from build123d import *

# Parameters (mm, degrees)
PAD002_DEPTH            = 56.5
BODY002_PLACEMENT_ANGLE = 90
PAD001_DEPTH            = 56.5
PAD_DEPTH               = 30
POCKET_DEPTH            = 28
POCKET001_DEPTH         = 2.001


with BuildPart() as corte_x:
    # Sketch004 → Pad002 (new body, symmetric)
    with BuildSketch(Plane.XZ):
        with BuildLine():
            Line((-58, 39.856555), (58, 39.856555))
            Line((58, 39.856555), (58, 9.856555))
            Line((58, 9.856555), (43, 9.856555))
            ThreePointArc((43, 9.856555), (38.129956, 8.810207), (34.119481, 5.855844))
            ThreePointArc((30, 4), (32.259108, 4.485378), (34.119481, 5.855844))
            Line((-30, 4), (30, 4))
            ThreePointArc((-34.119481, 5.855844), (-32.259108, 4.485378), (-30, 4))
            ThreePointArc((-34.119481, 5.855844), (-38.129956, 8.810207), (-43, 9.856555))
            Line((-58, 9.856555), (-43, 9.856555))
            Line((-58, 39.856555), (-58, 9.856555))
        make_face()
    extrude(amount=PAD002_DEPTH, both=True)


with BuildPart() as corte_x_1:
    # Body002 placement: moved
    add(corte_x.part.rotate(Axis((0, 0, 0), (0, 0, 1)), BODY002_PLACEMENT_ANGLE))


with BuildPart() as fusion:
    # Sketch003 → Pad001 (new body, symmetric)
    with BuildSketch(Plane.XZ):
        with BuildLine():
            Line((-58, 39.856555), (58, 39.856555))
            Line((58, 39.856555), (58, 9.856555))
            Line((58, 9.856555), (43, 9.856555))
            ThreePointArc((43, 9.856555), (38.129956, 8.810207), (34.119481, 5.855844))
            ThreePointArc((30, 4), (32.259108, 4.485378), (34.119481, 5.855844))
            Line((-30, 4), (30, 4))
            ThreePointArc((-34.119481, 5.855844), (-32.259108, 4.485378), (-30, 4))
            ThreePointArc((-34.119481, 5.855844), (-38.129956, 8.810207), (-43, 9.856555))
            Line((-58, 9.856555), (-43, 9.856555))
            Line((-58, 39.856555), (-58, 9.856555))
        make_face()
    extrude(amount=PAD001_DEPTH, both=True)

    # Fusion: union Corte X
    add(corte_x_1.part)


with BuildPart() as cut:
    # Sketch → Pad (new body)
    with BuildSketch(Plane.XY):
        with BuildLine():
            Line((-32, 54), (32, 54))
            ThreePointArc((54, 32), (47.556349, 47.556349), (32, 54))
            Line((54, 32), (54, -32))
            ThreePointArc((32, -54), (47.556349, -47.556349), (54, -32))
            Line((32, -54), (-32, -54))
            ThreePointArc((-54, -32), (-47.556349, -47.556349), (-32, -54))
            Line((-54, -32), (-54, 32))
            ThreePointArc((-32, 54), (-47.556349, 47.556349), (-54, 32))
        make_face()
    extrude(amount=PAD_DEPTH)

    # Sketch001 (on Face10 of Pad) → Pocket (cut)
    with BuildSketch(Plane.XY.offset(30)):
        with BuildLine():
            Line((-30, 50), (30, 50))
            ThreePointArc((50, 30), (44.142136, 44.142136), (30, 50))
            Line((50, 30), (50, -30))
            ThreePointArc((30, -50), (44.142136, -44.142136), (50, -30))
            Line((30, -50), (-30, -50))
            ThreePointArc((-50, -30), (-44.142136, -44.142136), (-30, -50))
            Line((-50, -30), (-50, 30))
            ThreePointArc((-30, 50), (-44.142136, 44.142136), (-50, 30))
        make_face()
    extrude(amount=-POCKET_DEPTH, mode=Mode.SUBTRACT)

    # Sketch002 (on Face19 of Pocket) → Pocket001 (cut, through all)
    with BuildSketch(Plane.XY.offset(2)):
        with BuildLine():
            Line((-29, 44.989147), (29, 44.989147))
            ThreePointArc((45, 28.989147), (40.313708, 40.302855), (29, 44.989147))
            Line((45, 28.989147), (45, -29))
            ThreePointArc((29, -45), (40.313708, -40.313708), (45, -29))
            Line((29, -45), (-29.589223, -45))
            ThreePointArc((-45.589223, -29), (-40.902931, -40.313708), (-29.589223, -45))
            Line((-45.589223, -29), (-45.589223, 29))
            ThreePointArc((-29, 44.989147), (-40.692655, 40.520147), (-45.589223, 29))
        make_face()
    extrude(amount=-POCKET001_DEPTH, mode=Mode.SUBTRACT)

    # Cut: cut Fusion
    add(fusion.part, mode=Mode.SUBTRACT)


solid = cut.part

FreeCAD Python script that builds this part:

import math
import FreeCAD as App
import Part
import Sketcher
Q = App.Units.Quantity

doc = App.newDocument("Part")
body = doc.addObject("PartDesign::Body", "Body")

sketch1 = body.newObject("Sketcher::SketchObject", "Sketch")
sketch1.AttachmentSupport = (doc.getObject("XZ_Plane"), [""])
sketch1.MapMode = "FlatFace"
sketch1.addGeometry([
    Part.LineSegment(App.Vector(58, 39.9, 0), App.Vector(-58, 39.9, 0)),
    Part.LineSegment(App.Vector(-58, 39.9, 0), App.Vector(-58, 9.9, 0)),
    Part.LineSegment(App.Vector(-58, 9.9, 0), App.Vector(-43, 9.9, 0)),
    Part.ArcOfCircle(Part.Circle(App.Vector(-43, -2, 0), App.Vector(0, 0, 1), 11.9), math.radians(41), math.radians(90)),
    Part.ArcOfCircle(Part.Circle(App.Vector(-30, 9.5, 0), App.Vector(0, 0, 1), 5.5), math.radians(-139), math.radians(-90)),
    Part.LineSegment(App.Vector(-30, 4, 0), App.Vector(30, 4, 0)),
    Part.ArcOfCircle(Part.Circle(App.Vector(30, 9.5, 0), App.Vector(0, 0, 1), 5.5), math.radians(-90), math.radians(-41)),
    Part.ArcOfCircle(Part.Circle(App.Vector(43, -2, 0), App.Vector(0, 0, 1), 11.9), math.radians(90), math.radians(139)),
    Part.LineSegment(App.Vector(43, 9.9, 0), App.Vector(58, 9.9, 0)),
    Part.LineSegment(App.Vector(58, 9.9, 0), App.Vector(58, 39.9, 0)),
], False)
sketch1.addConstraint([
    Sketcher.Constraint("Coincident", 0, 2, 1, 1),
    Sketcher.Constraint("Coincident", 1, 2, 2, 1),
    Sketcher.Constraint("Tangent", 2, 2, 3, 2),
    Sketcher.Constraint("Tangent", 3, 1, 4, 1),
    Sketcher.Constraint("Tangent", 4, 2, 5, 1),
    Sketcher.Constraint("Tangent", 5, 2, 6, 1),
    Sketcher.Constraint("Tangent", 6, 2, 7, 2),
    Sketcher.Constraint("Tangent", 7, 1, 8, 1),
    Sketcher.Constraint("Coincident", 8, 2, 9, 1),
    Sketcher.Constraint("Coincident", 9, 2, 0, 1),
    Sketcher.Constraint("Horizontal", 0),
    Sketcher.Constraint("Vertical", 1),
    Sketcher.Constraint("Horizontal", 2),
    Sketcher.Constraint("Horizontal", 5),
    Sketcher.Constraint("Horizontal", 8),
    Sketcher.Constraint("Vertical", 9),
    Sketcher.Constraint("Equal", 4, 6),
    Sketcher.Constraint("Equal", 3, 7),
    Sketcher.Constraint("Symmetric", 3, 3, 7, 3, -2),
    Sketcher.Constraint("Equal", 2, 8),
    Sketcher.Constraint("DistanceX", 0, 2, 0, 1, Q("116 mm")),
    Sketcher.Constraint("DistanceX", 2, 1, 2, 2, Q("15 mm")),
    Sketcher.Constraint("DistanceX", 5, 1, 5, 2, Q("60 mm")),
    Sketcher.Constraint("DistanceY", 1, 2, 1, 1, Q("30 mm")),
    Sketcher.Constraint("DistanceY", 3, 3, -1, 1, Q("1.999998 mm")),
    Sketcher.Constraint("DistanceY", -1, 1, 4, 2, Q("4 mm")),
    Sketcher.Constraint("Radius", 3, Q("11.856553 mm")),
])
pad1 = body.newObject("PartDesign::Pad", "Pad")
pad1.Profile = sketch1
pad1.Length = 113
pad1.Midplane = True
body2 = doc.addObject("PartDesign::Body", "Body001")
doc.recompute()

body.Placement = App.Placement(App.Vector(0, 0, 0), App.Rotation(App.Vector(0, 0, 1), 90))
boolean = body2.newObject("PartDesign::Boolean", "Boolean")
boolean.Type = "Fuse"
boolean.addObjects([body])
body3 = doc.addObject("PartDesign::Body", "Body002")

sketch2 = body3.newObject("Sketcher::SketchObject", "Sketch001")
sketch2.AttachmentSupport = (doc.getObject("XZ_Plane002"), [""])
sketch2.MapMode = "FlatFace"
sketch2.addGeometry([
    Part.LineSegment(App.Vector(58, 39.9, 0), App.Vector(-58, 39.9, 0)),
    Part.LineSegment(App.Vector(-58, 39.9, 0), App.Vector(-58, 9.9, 0)),
    Part.LineSegment(App.Vector(-58, 9.9, 0), App.Vector(-43, 9.9, 0)),
    Part.ArcOfCircle(Part.Circle(App.Vector(-43, -2, 0), App.Vector(0, 0, 1), 11.9), math.radians(41), math.radians(90)),
    Part.ArcOfCircle(Part.Circle(App.Vector(-30, 9.5, 0), App.Vector(0, 0, 1), 5.5), math.radians(-139), math.radians(-90)),
    Part.LineSegment(App.Vector(-30, 4, 0), App.Vector(30, 4, 0)),
    Part.ArcOfCircle(Part.Circle(App.Vector(30, 9.5, 0), App.Vector(0, 0, 1), 5.5), math.radians(-90), math.radians(-41)),
    Part.ArcOfCircle(Part.Circle(App.Vector(43, -2, 0), App.Vector(0, 0, 1), 11.9), math.radians(90), math.radians(139)),
    Part.LineSegment(App.Vector(43, 9.9, 0), App.Vector(58, 9.9, 0)),
    Part.LineSegment(App.Vector(58, 9.9, 0), App.Vector(58, 39.9, 0)),
], False)
sketch2.addConstraint([
    Sketcher.Constraint("Coincident", 0, 2, 1, 1),
    Sketcher.Constraint("Coincident", 1, 2, 2, 1),
    Sketcher.Constraint("Tangent", 2, 2, 3, 2),
    Sketcher.Constraint("Tangent", 3, 1, 4, 1),
    Sketcher.Constraint("Tangent", 4, 2, 5, 1),
    Sketcher.Constraint("Tangent", 5, 2, 6, 1),
    Sketcher.Constraint("Tangent", 6, 2, 7, 2),
    Sketcher.Constraint("Tangent", 7, 1, 8, 1),
    Sketcher.Constraint("Coincident", 8, 2, 9, 1),
    Sketcher.Constraint("Coincident", 9, 2, 0, 1),
    Sketcher.Constraint("Horizontal", 0),
    Sketcher.Constraint("Vertical", 1),
    Sketcher.Constraint("Horizontal", 2),
    Sketcher.Constraint("Horizontal", 5),
    Sketcher.Constraint("Horizontal", 8),
    Sketcher.Constraint("Vertical", 9),
    Sketcher.Constraint("Equal", 4, 6),
    Sketcher.Constraint("Equal", 3, 7),
    Sketcher.Constraint("Symmetric", 3, 3, 7, 3, -2),
    Sketcher.Constraint("Equal", 2, 8),
    Sketcher.Constraint("DistanceX", 0, 2, 0, 1, Q("116 mm")),
    Sketcher.Constraint("DistanceX", 2, 1, 2, 2, Q("15 mm")),
    Sketcher.Constraint("DistanceX", 5, 1, 5, 2, Q("60 mm")),
    Sketcher.Constraint("DistanceY", 1, 2, 1, 1, Q("30 mm")),
    Sketcher.Constraint("DistanceY", 3, 3, -1, 1, Q("1.999998 mm")),
    Sketcher.Constraint("DistanceY", -1, 1, 4, 2, Q("4 mm")),
    Sketcher.Constraint("Radius", 3, Q("11.856553 mm")),
])
pad2 = body3.newObject("PartDesign::Pad", "Pad001")
pad2.Profile = sketch2
pad2.Length = 113
pad2.Midplane = True
doc.recompute()

boolean2 = body3.newObject("PartDesign::Boolean", "Boolean001")
boolean2.Type = "Fuse"
boolean2.addObjects([body2])
body4 = doc.addObject("PartDesign::Body", "Body003")

sketch3 = body4.newObject("Sketcher::SketchObject", "Sketch002")
sketch3.AttachmentSupport = (doc.getObject("XY_Plane003"), [""])
sketch3.MapMode = "FlatFace"
sketch3.addGeometry([
    Part.LineSegment(App.Vector(32, 54, 0), App.Vector(-32, 54, 0)),
    Part.ArcOfCircle(Part.Circle(App.Vector(-32, 32, 0), App.Vector(0, 0, 1), 22), math.radians(90), math.radians(180)),
    Part.LineSegment(App.Vector(-54, 32, 0), App.Vector(-54, -32, 0)),
    Part.ArcOfCircle(Part.Circle(App.Vector(-32, -32, 0), App.Vector(0, 0, 1), 22), math.radians(-180), math.radians(-90)),
    Part.LineSegment(App.Vector(-32, -54, 0), App.Vector(32, -54, 0)),
    Part.ArcOfCircle(Part.Circle(App.Vector(32, -32, 0), App.Vector(0, 0, 1), 22), math.radians(-90), math.radians(0)),
    Part.LineSegment(App.Vector(54, -32, 0), App.Vector(54, 32, 0)),
    Part.ArcOfCircle(Part.Circle(App.Vector(32, 32, 0), App.Vector(0, 0, 1), 22), math.radians(0), math.radians(90)),
], False)
sketch3.addConstraint([
    Sketcher.Constraint("Tangent", 0, 2, 1, 1),
    Sketcher.Constraint("Tangent", 1, 2, 2, 1),
    Sketcher.Constraint("Tangent", 2, 2, 3, 1),
    Sketcher.Constraint("Tangent", 3, 2, 4, 1),
    Sketcher.Constraint("Tangent", 4, 2, 5, 1),
    Sketcher.Constraint("Tangent", 5, 2, 6, 1),
    Sketcher.Constraint("Tangent", 6, 2, 7, 1),
    Sketcher.Constraint("Tangent", 7, 2, 0, 1),
    Sketcher.Constraint("Horizontal", 0),
    Sketcher.Constraint("Vertical", 2),
    Sketcher.Constraint("Horizontal", 4),
    Sketcher.Constraint("Vertical", 6),
    Sketcher.Constraint("Equal", 1, 3),
    Sketcher.Constraint("Equal", 3, 5),
    Sketcher.Constraint("Equal", 5, 7),
    Sketcher.Constraint("Symmetric", 1, 3, 5, 3, -1, 1),
    Sketcher.Constraint("Equal", 4, 2),
    Sketcher.Constraint("Radius", 1, Q("22.000001 mm")),
    Sketcher.Constraint("DistanceX", 0, 2, 0, 1, Q("64 mm")),
])
pad3 = body4.newObject("PartDesign::Pad", "Pad002")
pad3.Profile = sketch3
pad3.Length = 30

sketch4 = body4.newObject("Sketcher::SketchObject", "Sketch003")
sketch4.AttachmentSupport = (doc.getObject("XY_Plane003"), [""])
sketch4.MapMode = "FlatFace"
sketch4.AttachmentOffset = App.Placement(App.Vector(0, 0, 30), App.Rotation())
sketch4.addGeometry([
    Part.LineSegment(App.Vector(30, 50, 0), App.Vector(-30, 50, 0)),
    Part.ArcOfCircle(Part.Circle(App.Vector(-30, 30, 0), App.Vector(0, 0, 1), 20), math.radians(90), math.radians(180)),
    Part.LineSegment(App.Vector(-50, 30, 0), App.Vector(-50, -30, 0)),
    Part.ArcOfCircle(Part.Circle(App.Vector(-30, -30, 0), App.Vector(0, 0, 1), 20), math.radians(180), math.radians(270)),
    Part.LineSegment(App.Vector(-30, -50, 0), App.Vector(30, -50, 0)),
    Part.ArcOfCircle(Part.Circle(App.Vector(30, -30, 0), App.Vector(0, 0, 1), 20), math.radians(-90), math.radians(0)),
    Part.LineSegment(App.Vector(50, -30, 0), App.Vector(50, 30, 0)),
    Part.ArcOfCircle(Part.Circle(App.Vector(30, 30, 0), App.Vector(0, 0, 1), 20), math.radians(0), math.radians(90)),
], False)
sketch4.addConstraint([
    Sketcher.Constraint("Tangent", 0, 2, 1, 1),
    Sketcher.Constraint("Tangent", 1, 2, 2, 1),
    Sketcher.Constraint("Tangent", 2, 2, 3, 1),
    Sketcher.Constraint("Tangent", 3, 2, 4, 1),
    Sketcher.Constraint("Tangent", 4, 2, 5, 1),
    Sketcher.Constraint("Tangent", 5, 2, 6, 1),
    Sketcher.Constraint("Tangent", 6, 2, 7, 1),
    Sketcher.Constraint("Tangent", 7, 2, 0, 1),
    Sketcher.Constraint("Horizontal", 0),
    Sketcher.Constraint("Vertical", 2),
    Sketcher.Constraint("Horizontal", 4),
    Sketcher.Constraint("Vertical", 6),
    Sketcher.Constraint("Equal", 1, 3),
    Sketcher.Constraint("Equal", 3, 5),
    Sketcher.Constraint("Equal", 5, 7),
    Sketcher.Constraint("Symmetric", 1, 3, 5, 3, -1, 1),
    Sketcher.Constraint("Equal", 4, 2),
    Sketcher.Constraint("Radius", 1, Q("19.999999 mm")),
    Sketcher.Constraint("DistanceX", 0, 2, 0, 1, Q("60 mm")),
])
pocket1 = body4.newObject("PartDesign::Pocket", "Pocket")
pocket1.Profile = sketch4
pocket1.Length = 28

sketch5 = body4.newObject("Sketcher::SketchObject", "Sketch004")
sketch5.AttachmentSupport = (doc.getObject("XY_Plane003"), [""])
sketch5.MapMode = "FlatFace"
sketch5.AttachmentOffset = App.Placement(App.Vector(0, 0, 2), App.Rotation())
sketch5.addGeometry([
    Part.LineSegment(App.Vector(29, 45, 0), App.Vector(-29, 45, 0)),
    Part.ArcOfCircle(Part.Circle(App.Vector(-30, 29, 0), App.Vector(0, 0, 1), 16), math.radians(88), math.radians(180)),
    Part.LineSegment(App.Vector(-46, 29, 0), App.Vector(-46, -29, 0)),
    Part.ArcOfCircle(Part.Circle(App.Vector(-30, -29, 0), App.Vector(0, 0, 1), 16), math.radians(-180), math.radians(-90)),
    Part.LineSegment(App.Vector(-30, -45, 0), App.Vector(29, -45, 0)),
    Part.ArcOfCircle(Part.Circle(App.Vector(29, -29, 0), App.Vector(0, 0, 1), 16), math.radians(-90), math.radians(0)),
    Part.LineSegment(App.Vector(45, -29, 0), App.Vector(45, 29, 0)),
    Part.ArcOfCircle(Part.Circle(App.Vector(29, 29, 0), App.Vector(0, 0, 1), 16), math.radians(0), math.radians(90)),
], False)
sketch5.addConstraint([
    Sketcher.Constraint("Coincident", 0, 2, 1, 1),
    Sketcher.Constraint("Tangent", 1, 2, 2, 1),
    Sketcher.Constraint("Tangent", 2, 2, 3, 1),
    Sketcher.Constraint("Tangent", 3, 2, 4, 1),
    Sketcher.Constraint("Tangent", 4, 2, 5, 1),
    Sketcher.Constraint("Tangent", 5, 2, 6, 1),
    Sketcher.Constraint("Tangent", 6, 2, 7, 1),
    Sketcher.Constraint("Tangent", 7, 2, 0, 1),
    Sketcher.Constraint("Horizontal", 0),
    Sketcher.Constraint("Vertical", 2),
    Sketcher.Constraint("Horizontal", 4),
    Sketcher.Constraint("Vertical", 6),
    Sketcher.Constraint("Equal", 1, 3),
    Sketcher.Constraint("Equal", 3, 5),
    Sketcher.Constraint("Equal", 5, 7),
    Sketcher.Constraint("Equal", 0, 2),
    Sketcher.Constraint("Radius", 1, Q("16.000001 mm")),
    Sketcher.Constraint("DistanceX", 0, 2, 0, 1, Q("58 mm")),
    Sketcher.Constraint("DistanceY", -1, 1, 1, 3, Q("28.999999 mm")),
    Sketcher.Constraint("DistanceX", -1, 1, 5, 3, Q("28.999998 mm")),
    Sketcher.Constraint("DistanceX", 4, 1, 4, 2, Q("58.589223 mm")),
])
pocket2 = body4.newObject("PartDesign::Pocket", "Pocket001")
pocket2.Profile = sketch5
pocket2.Type = "ThroughAll"
doc.recompute()

boolean3 = body4.newObject("PartDesign::Boolean", "Boolean002")
boolean3.Type = "Cut"
boolean3.addObjects([body3])

doc.recompute()
